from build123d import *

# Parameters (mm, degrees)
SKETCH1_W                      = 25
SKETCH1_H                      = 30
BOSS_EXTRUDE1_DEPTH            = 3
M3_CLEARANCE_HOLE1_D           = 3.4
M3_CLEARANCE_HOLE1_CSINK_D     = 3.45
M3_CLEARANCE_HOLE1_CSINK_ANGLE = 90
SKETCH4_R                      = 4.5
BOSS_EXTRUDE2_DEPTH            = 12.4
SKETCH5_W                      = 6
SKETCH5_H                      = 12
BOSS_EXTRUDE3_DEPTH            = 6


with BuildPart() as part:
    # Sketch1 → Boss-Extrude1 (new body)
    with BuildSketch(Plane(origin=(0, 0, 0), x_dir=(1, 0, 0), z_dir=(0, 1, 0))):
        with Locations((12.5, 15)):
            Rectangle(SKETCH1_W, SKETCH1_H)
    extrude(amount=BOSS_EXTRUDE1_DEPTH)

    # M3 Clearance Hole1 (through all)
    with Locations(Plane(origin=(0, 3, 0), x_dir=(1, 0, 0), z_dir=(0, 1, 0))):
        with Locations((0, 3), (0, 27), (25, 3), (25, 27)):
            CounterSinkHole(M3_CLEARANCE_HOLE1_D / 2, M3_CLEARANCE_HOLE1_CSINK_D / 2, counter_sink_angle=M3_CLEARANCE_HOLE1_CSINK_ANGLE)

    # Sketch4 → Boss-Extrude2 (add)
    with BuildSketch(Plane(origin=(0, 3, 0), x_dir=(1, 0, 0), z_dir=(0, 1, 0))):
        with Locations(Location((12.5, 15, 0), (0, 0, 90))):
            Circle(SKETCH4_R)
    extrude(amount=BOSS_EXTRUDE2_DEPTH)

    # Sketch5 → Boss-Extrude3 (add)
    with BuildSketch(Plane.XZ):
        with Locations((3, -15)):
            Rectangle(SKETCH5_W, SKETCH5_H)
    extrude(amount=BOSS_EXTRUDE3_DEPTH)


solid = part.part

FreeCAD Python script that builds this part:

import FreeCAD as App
import Part
import Sketcher

V = App.Vector
Q = App.Units.Quantity

doc = App.newDocument("Part")
params = doc.addObject("Spreadsheet::Sheet", "Params")
for row, (alias, value) in enumerate([
    ("sketch1_width", "25 mm"),
    ("sketch1_height", "30 mm"),
    ("pad1_length", "3 mm"),
    ("sketch2_diameter", "3.4 mm"),
    ("hole_diameter", "3.4 mm"),
    ("hole_csink_diameter", "3.45 mm"),
    ("sketch3_diameter", "9 mm"),
    ("pad2_length", "12.4 mm"),
    ("sketch4_width", "6 mm"),
    ("sketch4_height", "12 mm"),
    ("pad3_length", "6 mm"),
], start=1):
    params.set(f"A{row}", alias)
    params.set(f"B{row}", "=" + value)
    params.setAlias(f"B{row}", alias)

body = doc.addObject("PartDesign::Body", "Body")

sketch1 = body.newObject("Sketcher::SketchObject", "Sketch")
sketch1.AttachmentSupport = (doc.getObject("XZ_Plane"), [""])
sketch1.MapMode = "FlatFace"
sketch1.addGeometry(Part.LineSegment(V(0, -30, 0), V(0, 0, 0)), False)
sketch1.addGeometry(Part.LineSegment(V(0, 0, 0), V(25, 0, 0)), False)
sketch1.addGeometry(Part.LineSegment(V(25, 0, 0), V(25, -30, 0)), False)
sketch1.addGeometry(Part.LineSegment(V(25, -30, 0), V(0, -30, 0)), False)
sketch1.addConstraint(Sketcher.Constraint("Coincident", 0, 2, 1, 1))
sketch1.addConstraint(Sketcher.Constraint("Coincident", 1, 2, 2, 1))
sketch1.addConstraint(Sketcher.Constraint("Coincident", 2, 2, 3, 1))
sketch1.addConstraint(Sketcher.Constraint("Coincident", 3, 2, 0, 1))
sketch1.addConstraint(Sketcher.Constraint("Vertical", 0))
sketch1.addConstraint(Sketcher.Constraint("Horizontal", 1))
sketch1.addConstraint(Sketcher.Constraint("Vertical", 2))
sketch1.addConstraint(Sketcher.Constraint("Horizontal", 3))
sketch1.addConstraint(Sketcher.Constraint("Coincident", 0, 2, -1, 1))
sketch1.addConstraint(Sketcher.Constraint("DistanceX", 1, 1, 1, 2, Q("25 mm")))
sketch1.addConstraint(Sketcher.Constraint("DistanceY", 0, 1, 0, 2, Q("30 mm")))
sketch1.setExpression("Constraints[9]", "Params.sketch1_width")
sketch1.setExpression("Constraints[10]", "Params.sketch1_height")
pad1 = body.newObject("PartDesign::Pad", "Pad")
pad1.Profile = sketch1
pad1.setExpression("Length", "Params.pad1_length")
pad1.Reversed = True

sketch2 = body.newObject("Sketcher::SketchObject", "Sketch001")
sketch2.AttachmentSupport = (doc.getObject("XZ_Plane"), [""])
sketch2.MapMode = "FlatFace"
sketch2.AttachmentOffset = App.Placement(V(0, 0, -3), App.Rotation())
sketch2.addGeometry(Part.Circle(V(0, -3, 0), V(0, 0, 1), 1.7), False)
sketch2.addGeometry(Part.Circle(V(0, -27, 0), V(0, 0, 1), 1.7), False)
sketch2.addGeometry(Part.Circle(V(25, -3, 0), V(0, 0, 1), 1.7), False)
sketch2.addGeometry(Part.Circle(V(25, -27, 0), V(0, 0, 1), 1.7), False)
sketch2.addConstraint(Sketcher.Constraint("Equal", 0, 1))
sketch2.addConstraint(Sketcher.Constraint("Equal", 1, 2))
sketch2.addConstraint(Sketcher.Constraint("Equal", 2, 3))
sketch2.addConstraint(Sketcher.Constraint("PointOnObject", 0, 3, -2))
sketch2.addConstraint(Sketcher.Constraint("PointOnObject", 1, 3, -2))
sketch2.addConstraint(Sketcher.Constraint("Horizontal", 0, 3, 2, 3))
sketch2.addConstraint(Sketcher.Constraint("Horizontal", 1, 3, 3, 3))
sketch2.addConstraint(Sketcher.Constraint("Vertical", 2, 3, 3, 3))
sketch2.addConstraint(Sketcher.Constraint("Diameter", 0, Q("3.4 mm")))
sketch2.addConstraint(Sketcher.Constraint("DistanceY", 0, 3, -1, 1, Q("3 mm")))
sketch2.addConstraint(Sketcher.Constraint("DistanceY", 1, 3, -1, 1, Q("27 mm")))
sketch2.addConstraint(Sketcher.Constraint("DistanceX", -1, 1, 2, 3, Q("25 mm")))
sketch2.setExpression("Constraints[8]", "Params.sketch2_diameter")
doc.recompute()
hole = body.newObject("PartDesign::Hole", "Hole")
hole.Profile = sketch2
hole.ThreadType = "None"
hole.setExpression("Diameter", "Params.hole_diameter")
hole.DepthType = "ThroughAll"
hole.HoleCutType = "Countersink"
hole.setExpression("HoleCutDiameter", "Params.hole_csink_diameter")
hole.HoleCutCountersinkAngle = 90
hole.Reversed = True

sketch3 = body.newObject("Sketcher::SketchObject", "Sketch002")
sketch3.AttachmentSupport = (doc.getObject("XZ_Plane"), [""])
sketch3.MapMode = "FlatFace"
sketch3.AttachmentOffset = App.Placement(V(0, 0, -3), App.Rotation())
sketch3.addGeometry(Part.Circle(V(12.5, -15, 0), V(0, 0, 1), 4.5), False)
sketch3.addConstraint(Sketcher.Constraint("Diameter", 0, Q("9 mm")))
sketch3.addConstraint(Sketcher.Constraint("DistanceY", 0, 3, -1, 1, Q("15 mm")))
sketch3.addConstraint(Sketcher.Constraint("DistanceX", -1, 1, 0, 3, Q("12.5 mm")))
sketch3.setExpression("Constraints[0]", "Params.sketch3_diameter")
pad2 = body.newObject("PartDesign::Pad", "Pad001")
pad2.Profile = sketch3
pad2.setExpression("Length", "Params.pad2_length")
pad2.Reversed = True

sketch4 = body.newObject("Sketcher::SketchObject", "Sketch003")
sketch4.AttachmentSupport = (doc.getObject("XZ_Plane"), [""])
sketch4.MapMode = "FlatFace"
sketch4.addGeometry(Part.LineSegment(V(0, -9, 0), V(0, -21, 0)), False)
sketch4.addGeometry(Part.LineSegment(V(0, -21, 0), V(6, -21, 0)), False)
sketch4.addGeometry(Part.LineSegment(V(6, -21, 0), V(6, -9, 0)), False)
sketch4.addGeometry(Part.LineSegment(V(6, -9, 0), V(0, -9, 0)), False)
sketch4.addConstraint(Sketcher.Constraint("Coincident", 0, 2, 1, 1))
sketch4.addConstraint(Sketcher.Constraint("Coincident", 1, 2, 2, 1))
sketch4.addConstraint(Sketcher.Constraint("Coincident", 2, 2, 3, 1))
sketch4.addConstraint(Sketcher.Constraint("Coincident", 3, 2, 0, 1))
sketch4.addConstraint(Sketcher.Constraint("Vertical", 0))
sketch4.addConstraint(Sketcher.Constraint("Horizontal", 1))
sketch4.addConstraint(Sketcher.Constraint("Vertical", 2))
sketch4.addConstraint(Sketcher.Constraint("Horizontal", 3))
sketch4.addConstraint(Sketcher.Constraint("PointOnObject", 0, 2, -2))
sketch4.addConstraint(Sketcher.Constraint("DistanceX", 1, 1, 1, 2, Q("6 mm")))
sketch4.addConstraint(Sketcher.Constraint("DistanceY", 0, 2, 0, 1, Q("12 mm")))
sketch4.addConstraint(Sketcher.Constraint("DistanceY", 0, 2, -1, 1, Q("21 mm")))
sketch4.setExpression("Constraints[9]", "Params.sketch4_width")
sketch4.setExpression("Constraints[10]", "Params.sketch4_height")
pad3 = body.newObject("PartDesign::Pad", "Pad002")
pad3.Profile = sketch4
pad3.setExpression("Length", "Params.pad3_length")

doc.recompute()
